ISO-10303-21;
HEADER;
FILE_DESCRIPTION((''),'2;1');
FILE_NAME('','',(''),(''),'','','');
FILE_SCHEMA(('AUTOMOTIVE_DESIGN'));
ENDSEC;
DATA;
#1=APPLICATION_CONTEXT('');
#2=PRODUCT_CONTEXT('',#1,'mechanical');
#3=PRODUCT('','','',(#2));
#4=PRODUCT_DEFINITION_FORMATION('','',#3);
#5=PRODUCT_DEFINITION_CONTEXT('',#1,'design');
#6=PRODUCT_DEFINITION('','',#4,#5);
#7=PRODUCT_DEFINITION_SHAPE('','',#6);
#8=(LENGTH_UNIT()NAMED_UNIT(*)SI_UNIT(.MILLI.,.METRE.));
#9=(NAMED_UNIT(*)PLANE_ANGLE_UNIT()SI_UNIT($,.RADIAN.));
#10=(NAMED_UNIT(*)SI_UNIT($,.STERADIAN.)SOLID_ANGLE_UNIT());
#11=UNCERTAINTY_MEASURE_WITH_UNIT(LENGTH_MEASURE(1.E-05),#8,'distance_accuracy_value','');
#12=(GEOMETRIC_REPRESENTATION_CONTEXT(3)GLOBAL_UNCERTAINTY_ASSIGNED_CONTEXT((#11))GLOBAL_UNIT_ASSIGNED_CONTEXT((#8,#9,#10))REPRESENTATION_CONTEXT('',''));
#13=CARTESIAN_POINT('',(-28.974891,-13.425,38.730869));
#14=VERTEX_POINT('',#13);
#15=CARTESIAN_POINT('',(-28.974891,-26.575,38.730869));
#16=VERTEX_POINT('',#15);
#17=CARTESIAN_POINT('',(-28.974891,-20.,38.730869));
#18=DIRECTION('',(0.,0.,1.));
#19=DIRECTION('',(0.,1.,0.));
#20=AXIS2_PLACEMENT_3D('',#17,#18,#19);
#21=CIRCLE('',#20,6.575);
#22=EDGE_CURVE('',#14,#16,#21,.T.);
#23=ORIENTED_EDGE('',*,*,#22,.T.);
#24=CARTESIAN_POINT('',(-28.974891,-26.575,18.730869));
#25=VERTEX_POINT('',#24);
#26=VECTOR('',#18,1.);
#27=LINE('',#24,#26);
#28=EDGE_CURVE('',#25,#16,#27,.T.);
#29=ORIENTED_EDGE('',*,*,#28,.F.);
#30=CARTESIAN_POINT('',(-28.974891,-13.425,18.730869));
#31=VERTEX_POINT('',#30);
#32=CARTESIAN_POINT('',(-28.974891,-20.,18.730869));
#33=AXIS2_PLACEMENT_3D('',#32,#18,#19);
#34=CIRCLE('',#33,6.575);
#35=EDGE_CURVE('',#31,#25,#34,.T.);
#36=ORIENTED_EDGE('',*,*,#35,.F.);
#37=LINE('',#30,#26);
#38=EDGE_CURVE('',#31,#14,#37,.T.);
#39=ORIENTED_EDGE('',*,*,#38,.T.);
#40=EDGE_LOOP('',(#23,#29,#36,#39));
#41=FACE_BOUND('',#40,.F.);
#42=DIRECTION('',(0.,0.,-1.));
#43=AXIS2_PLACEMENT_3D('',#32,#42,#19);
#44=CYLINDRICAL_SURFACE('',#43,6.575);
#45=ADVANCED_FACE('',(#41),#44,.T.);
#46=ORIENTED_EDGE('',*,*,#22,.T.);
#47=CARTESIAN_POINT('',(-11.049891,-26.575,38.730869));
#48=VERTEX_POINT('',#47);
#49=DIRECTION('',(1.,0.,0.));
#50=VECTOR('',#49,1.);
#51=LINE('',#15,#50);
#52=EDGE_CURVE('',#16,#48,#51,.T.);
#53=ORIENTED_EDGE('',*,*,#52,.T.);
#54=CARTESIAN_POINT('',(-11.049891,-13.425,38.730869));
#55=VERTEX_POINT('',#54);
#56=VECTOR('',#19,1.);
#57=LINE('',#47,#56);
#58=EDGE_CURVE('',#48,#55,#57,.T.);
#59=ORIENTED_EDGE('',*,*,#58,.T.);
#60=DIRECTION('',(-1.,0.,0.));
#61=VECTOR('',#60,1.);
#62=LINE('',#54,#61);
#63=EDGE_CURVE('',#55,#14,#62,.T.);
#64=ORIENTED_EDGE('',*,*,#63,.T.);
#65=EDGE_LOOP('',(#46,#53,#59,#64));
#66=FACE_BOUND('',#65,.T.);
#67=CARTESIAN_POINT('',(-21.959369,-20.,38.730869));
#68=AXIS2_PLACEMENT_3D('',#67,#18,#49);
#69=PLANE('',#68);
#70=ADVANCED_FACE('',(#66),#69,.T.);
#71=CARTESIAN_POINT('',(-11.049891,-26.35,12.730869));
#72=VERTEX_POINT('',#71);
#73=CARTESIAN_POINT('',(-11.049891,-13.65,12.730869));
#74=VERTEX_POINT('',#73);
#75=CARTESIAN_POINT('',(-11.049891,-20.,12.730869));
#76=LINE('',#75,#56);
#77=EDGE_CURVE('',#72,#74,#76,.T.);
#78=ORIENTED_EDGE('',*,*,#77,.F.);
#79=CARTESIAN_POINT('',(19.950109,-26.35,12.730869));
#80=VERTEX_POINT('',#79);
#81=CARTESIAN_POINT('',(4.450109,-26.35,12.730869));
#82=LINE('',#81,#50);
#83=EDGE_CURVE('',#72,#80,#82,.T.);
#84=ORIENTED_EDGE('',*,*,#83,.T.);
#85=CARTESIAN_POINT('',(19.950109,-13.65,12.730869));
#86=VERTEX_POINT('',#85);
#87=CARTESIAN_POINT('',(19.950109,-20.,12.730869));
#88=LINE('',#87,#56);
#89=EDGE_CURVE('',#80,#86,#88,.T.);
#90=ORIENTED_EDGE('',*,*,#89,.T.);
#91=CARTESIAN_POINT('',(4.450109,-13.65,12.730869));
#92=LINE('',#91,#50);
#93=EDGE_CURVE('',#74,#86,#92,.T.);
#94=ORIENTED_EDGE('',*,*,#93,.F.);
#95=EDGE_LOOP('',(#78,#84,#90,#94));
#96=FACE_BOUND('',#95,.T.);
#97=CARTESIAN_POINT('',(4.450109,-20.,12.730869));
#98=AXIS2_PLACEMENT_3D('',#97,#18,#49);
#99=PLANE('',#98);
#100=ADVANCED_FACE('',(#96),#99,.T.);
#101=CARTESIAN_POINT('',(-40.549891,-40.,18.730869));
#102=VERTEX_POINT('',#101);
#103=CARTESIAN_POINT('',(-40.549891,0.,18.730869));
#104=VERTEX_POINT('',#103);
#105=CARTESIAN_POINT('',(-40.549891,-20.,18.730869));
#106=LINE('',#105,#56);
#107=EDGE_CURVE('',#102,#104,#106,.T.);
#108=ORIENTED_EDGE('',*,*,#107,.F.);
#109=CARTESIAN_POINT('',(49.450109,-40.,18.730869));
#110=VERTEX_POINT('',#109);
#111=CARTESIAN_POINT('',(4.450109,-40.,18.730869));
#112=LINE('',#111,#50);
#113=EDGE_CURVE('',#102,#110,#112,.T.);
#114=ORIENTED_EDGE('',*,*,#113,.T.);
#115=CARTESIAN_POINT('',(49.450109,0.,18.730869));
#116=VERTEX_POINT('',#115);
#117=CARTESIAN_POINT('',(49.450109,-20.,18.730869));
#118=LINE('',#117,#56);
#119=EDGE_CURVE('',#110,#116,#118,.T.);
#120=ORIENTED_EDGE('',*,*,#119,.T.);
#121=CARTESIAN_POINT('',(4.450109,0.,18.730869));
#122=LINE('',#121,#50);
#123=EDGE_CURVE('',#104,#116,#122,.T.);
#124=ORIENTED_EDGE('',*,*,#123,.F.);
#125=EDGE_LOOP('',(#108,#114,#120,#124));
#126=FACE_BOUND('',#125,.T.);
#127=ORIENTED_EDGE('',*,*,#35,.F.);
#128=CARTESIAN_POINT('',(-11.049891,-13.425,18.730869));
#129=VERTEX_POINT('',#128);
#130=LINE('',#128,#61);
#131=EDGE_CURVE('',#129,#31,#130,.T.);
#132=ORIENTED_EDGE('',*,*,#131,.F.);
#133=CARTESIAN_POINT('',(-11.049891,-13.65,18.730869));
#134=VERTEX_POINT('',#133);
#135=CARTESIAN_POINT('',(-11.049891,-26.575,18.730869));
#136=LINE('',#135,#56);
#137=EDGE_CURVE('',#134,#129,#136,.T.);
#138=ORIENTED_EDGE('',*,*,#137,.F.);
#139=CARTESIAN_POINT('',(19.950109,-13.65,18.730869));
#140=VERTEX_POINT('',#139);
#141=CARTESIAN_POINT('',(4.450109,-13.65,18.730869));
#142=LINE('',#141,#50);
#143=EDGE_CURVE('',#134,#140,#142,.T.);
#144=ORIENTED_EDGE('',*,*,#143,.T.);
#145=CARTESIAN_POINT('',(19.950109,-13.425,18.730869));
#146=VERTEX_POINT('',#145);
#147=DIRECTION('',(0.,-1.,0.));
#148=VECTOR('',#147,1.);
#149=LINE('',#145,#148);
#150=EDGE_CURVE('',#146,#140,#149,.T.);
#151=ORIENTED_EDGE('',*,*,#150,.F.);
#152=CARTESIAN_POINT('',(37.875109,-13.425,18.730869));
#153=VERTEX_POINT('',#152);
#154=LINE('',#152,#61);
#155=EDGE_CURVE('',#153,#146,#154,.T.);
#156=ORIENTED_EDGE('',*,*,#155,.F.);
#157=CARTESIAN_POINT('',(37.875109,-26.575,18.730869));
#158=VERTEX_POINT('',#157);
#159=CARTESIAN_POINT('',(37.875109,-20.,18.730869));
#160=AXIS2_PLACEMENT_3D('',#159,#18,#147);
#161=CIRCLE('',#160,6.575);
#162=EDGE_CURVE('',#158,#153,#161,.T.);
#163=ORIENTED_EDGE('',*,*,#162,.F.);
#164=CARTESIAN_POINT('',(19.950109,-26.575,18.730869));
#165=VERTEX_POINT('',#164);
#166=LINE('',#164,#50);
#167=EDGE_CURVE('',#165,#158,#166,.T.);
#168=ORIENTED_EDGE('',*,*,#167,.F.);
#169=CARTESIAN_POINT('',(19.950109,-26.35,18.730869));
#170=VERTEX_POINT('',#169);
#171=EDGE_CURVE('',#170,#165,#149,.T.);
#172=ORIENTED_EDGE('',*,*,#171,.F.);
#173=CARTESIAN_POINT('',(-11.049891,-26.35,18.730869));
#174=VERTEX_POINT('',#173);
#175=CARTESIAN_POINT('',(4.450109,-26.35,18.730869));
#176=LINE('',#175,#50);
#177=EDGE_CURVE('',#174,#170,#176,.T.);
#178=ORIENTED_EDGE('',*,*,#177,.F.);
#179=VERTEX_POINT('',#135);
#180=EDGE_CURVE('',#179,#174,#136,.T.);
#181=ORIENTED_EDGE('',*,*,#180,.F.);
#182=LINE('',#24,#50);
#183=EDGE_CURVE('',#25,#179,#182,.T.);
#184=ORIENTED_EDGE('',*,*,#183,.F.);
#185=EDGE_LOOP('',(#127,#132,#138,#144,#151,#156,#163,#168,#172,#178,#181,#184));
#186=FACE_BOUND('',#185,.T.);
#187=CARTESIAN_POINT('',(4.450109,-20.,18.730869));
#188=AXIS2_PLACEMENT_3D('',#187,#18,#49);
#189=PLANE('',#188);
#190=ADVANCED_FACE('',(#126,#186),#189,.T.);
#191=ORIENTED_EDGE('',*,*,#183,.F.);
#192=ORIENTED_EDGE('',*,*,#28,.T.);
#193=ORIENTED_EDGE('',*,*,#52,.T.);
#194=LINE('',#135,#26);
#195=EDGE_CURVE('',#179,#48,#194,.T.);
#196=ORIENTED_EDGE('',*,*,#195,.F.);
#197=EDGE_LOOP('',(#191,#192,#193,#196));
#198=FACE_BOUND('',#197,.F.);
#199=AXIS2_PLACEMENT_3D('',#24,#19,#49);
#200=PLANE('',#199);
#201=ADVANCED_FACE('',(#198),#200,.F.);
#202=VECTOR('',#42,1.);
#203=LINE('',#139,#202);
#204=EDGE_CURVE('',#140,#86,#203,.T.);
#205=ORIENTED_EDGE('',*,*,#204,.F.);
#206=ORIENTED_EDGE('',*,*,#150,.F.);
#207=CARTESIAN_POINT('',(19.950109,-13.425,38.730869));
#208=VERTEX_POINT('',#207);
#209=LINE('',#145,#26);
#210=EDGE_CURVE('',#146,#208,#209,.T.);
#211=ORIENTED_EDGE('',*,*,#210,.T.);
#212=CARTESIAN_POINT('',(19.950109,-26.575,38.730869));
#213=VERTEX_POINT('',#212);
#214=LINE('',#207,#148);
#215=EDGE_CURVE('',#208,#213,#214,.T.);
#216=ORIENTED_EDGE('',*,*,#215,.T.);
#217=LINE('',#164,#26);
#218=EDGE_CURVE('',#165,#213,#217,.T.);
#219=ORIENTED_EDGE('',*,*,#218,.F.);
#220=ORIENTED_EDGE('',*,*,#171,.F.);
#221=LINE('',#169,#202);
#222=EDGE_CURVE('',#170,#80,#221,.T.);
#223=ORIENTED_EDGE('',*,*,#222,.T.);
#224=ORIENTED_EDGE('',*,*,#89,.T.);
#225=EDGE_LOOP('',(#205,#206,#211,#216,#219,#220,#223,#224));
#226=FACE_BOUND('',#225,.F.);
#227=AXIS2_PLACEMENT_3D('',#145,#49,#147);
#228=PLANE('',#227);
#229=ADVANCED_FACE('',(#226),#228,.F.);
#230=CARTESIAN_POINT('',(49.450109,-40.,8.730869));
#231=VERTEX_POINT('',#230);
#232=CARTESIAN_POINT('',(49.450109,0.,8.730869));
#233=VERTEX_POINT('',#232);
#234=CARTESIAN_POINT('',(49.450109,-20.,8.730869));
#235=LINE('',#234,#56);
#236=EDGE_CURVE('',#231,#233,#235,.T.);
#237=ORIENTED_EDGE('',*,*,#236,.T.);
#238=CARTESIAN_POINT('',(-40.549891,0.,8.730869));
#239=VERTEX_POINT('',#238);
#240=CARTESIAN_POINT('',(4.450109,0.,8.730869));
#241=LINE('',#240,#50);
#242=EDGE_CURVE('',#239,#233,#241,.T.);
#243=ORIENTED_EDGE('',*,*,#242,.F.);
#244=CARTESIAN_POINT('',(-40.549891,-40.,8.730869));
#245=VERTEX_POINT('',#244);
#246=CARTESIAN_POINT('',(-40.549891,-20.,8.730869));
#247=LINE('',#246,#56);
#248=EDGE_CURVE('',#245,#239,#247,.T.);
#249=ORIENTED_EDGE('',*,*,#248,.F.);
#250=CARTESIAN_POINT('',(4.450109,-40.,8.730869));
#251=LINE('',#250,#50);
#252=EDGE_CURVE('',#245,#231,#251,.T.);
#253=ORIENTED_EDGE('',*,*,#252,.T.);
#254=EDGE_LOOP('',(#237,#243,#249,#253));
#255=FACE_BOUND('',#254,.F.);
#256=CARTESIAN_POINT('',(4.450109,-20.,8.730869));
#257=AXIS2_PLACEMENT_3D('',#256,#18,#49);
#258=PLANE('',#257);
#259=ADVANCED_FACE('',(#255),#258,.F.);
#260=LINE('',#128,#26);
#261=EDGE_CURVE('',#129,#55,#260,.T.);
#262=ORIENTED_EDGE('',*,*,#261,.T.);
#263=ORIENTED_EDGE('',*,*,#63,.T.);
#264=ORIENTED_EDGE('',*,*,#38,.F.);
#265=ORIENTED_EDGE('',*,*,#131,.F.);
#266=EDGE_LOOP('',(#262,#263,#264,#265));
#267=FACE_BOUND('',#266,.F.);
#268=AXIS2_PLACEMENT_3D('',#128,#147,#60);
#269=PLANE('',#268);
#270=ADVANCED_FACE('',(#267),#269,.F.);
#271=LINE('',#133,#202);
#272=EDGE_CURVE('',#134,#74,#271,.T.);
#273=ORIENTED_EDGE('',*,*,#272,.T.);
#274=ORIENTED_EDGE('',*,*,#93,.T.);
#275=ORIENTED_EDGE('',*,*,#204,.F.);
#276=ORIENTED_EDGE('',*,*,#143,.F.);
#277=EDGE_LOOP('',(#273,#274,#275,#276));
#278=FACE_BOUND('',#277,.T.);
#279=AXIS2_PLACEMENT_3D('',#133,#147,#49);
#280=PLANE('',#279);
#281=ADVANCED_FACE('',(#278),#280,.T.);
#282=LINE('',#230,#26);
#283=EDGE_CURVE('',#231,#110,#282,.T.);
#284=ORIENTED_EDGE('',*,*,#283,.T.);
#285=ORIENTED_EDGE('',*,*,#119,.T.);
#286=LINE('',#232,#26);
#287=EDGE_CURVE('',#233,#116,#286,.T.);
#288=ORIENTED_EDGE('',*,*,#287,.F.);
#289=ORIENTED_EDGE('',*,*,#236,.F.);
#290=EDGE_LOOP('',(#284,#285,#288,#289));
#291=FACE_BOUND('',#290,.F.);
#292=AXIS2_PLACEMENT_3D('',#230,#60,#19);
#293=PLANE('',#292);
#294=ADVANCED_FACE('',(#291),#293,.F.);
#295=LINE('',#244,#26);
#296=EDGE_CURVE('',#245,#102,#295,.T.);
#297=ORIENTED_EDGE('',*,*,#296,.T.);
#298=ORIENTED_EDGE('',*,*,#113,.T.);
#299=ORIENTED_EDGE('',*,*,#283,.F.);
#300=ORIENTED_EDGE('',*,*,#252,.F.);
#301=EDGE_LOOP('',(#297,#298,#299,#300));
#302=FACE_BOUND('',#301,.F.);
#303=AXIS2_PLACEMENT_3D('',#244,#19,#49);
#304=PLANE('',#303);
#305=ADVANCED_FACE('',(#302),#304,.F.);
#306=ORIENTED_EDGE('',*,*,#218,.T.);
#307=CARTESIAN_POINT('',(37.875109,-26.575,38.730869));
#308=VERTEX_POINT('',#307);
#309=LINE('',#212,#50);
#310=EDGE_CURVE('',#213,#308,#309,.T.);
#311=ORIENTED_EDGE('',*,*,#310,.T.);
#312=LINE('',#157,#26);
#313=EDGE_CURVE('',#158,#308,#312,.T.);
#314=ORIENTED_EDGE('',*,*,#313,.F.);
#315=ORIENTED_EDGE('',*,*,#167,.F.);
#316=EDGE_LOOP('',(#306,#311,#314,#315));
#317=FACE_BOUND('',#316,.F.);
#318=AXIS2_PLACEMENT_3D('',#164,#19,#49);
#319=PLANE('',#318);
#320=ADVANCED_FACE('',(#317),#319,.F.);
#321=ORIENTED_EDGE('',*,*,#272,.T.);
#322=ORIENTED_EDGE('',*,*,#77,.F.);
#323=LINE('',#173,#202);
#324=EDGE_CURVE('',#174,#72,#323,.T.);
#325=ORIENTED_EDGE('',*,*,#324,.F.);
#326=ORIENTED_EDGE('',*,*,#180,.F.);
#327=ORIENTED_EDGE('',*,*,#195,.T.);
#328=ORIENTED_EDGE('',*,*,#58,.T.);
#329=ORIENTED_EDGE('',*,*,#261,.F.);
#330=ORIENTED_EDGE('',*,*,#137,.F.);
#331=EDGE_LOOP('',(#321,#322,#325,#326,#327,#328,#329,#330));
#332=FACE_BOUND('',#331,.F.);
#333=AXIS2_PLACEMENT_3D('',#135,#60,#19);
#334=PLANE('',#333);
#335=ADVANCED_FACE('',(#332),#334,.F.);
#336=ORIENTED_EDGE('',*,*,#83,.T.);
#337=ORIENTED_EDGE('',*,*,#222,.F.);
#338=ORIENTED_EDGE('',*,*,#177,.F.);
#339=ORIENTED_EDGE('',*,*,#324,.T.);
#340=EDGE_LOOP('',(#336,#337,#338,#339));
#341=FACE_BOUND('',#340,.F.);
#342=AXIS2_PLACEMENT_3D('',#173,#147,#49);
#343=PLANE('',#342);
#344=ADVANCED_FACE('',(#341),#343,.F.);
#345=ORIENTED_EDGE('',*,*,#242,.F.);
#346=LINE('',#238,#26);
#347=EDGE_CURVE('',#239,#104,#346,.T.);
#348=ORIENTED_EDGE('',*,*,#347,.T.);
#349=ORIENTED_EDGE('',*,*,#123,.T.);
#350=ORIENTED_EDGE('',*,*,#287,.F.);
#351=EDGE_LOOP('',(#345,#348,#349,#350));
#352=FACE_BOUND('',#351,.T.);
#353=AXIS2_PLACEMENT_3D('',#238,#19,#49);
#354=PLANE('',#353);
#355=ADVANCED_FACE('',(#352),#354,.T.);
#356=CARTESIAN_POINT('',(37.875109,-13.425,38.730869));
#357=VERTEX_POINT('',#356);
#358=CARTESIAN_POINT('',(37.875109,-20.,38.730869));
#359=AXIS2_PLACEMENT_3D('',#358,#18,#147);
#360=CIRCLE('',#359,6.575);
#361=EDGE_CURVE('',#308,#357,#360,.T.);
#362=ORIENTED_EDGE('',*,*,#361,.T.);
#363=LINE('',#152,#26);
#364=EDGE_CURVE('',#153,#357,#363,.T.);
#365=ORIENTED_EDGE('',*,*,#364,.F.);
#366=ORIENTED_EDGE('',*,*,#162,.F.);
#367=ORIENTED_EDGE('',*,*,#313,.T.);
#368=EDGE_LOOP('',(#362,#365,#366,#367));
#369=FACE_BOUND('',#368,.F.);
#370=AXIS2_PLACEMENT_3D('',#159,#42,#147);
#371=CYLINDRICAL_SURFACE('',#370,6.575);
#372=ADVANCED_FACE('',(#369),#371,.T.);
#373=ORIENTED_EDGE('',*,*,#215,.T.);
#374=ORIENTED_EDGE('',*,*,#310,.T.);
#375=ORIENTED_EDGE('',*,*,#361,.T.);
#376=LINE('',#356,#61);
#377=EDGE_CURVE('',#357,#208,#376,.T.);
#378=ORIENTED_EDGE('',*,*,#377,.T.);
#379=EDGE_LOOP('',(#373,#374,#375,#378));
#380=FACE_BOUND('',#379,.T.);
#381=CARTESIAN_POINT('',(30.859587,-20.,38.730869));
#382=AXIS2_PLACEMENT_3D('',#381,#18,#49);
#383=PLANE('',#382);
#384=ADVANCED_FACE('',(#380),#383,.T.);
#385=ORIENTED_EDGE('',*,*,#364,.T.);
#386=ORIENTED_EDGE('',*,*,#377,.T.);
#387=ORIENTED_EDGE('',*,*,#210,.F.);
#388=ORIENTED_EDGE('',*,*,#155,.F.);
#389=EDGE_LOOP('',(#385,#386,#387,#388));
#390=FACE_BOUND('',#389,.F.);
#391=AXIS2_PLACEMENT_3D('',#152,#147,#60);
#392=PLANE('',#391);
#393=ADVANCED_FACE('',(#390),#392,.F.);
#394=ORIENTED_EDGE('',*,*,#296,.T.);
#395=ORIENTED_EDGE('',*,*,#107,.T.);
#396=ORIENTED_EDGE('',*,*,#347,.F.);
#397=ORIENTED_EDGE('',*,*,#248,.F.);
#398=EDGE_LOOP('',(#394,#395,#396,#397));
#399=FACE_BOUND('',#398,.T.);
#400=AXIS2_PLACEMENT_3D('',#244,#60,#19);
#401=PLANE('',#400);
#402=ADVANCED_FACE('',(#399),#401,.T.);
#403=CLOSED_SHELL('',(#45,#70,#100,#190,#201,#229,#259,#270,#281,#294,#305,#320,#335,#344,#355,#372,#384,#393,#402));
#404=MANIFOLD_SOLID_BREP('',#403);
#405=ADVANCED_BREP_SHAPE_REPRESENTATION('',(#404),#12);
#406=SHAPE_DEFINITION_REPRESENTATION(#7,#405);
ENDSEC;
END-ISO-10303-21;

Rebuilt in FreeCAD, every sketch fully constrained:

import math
import FreeCAD as App
import Part
import Sketcher

V = App.Vector

doc = App.newDocument("Part")
body = doc.addObject("PartDesign::Body", "Body")

# Sketch on XZ plane
sketch1 = body.newObject("Sketcher::SketchObject", "Sketch")
sketch1.AttachmentSupport = (doc.getObject("XZ_Plane"), [""])
sketch1.MapMode = "FlatFace"
sketch1.addGeometry([
    Part.LineSegment(V(-41, 9, 0), V(-41, -31, 0)),
    Part.LineSegment(V(-41, -31, 0), V(49, -31, 0)),
    Part.LineSegment(V(49, -31, 0), V(49, 9, 0)),
    Part.LineSegment(V(49, 9, 0), V(-41, 9, 0)),
], False)
sketch1.addConstraint([
    Sketcher.Constraint("Coincident", 0, 2, 1, 1),
    Sketcher.Constraint("Coincident", 1, 2, 2, 1),
    Sketcher.Constraint("Coincident", 2, 2, 3, 1),
    Sketcher.Constraint("Coincident", 3, 2, 0, 1),
    Sketcher.Constraint("Vertical", 0),
    Sketcher.Constraint("Horizontal", 1),
    Sketcher.Constraint("Vertical", 2),
    Sketcher.Constraint("Horizontal", 3),
    Sketcher.Constraint("DistanceX", 1, 1, 1, 2, 90.0),
    Sketcher.Constraint("DistanceY", 0, 2, 0, 1, 40.0),
    Sketcher.Constraint("DistanceX", 0, 2, -1, 1, 40.549891),
    Sketcher.Constraint("DistanceY", 0, 2, -1, 1, 31.269131),
])
pad1 = body.newObject("PartDesign::Pad", "Pad")
pad1.Profile = sketch1
pad1.Length = 10

# Sketch on XZ plane
sketch2 = body.newObject("Sketcher::SketchObject", "Sketch001")
sketch2.AttachmentSupport = (doc.getObject("XZ_Plane"), [""])
sketch2.MapMode = "FlatFace"
sketch2.AttachmentOffset = App.Placement(V(0, 0, 10), App.Rotation())
sketch2.addGeometry([
    Part.LineSegment(V(-11, -5, 0), V(-11, -18, 0)),
    Part.LineSegment(V(-11, -18, 0), V(20, -18, 0)),
    Part.LineSegment(V(20, -18, 0), V(20, -5, 0)),
    Part.LineSegment(V(20, -5, 0), V(-11, -5, 0)),
], False)
sketch2.addConstraint([
    Sketcher.Constraint("Coincident", 0, 2, 1, 1),
    Sketcher.Constraint("Coincident", 1, 2, 2, 1),
    Sketcher.Constraint("Coincident", 2, 2, 3, 1),
    Sketcher.Constraint("Coincident", 3, 2, 0, 1),
    Sketcher.Constraint("Vertical", 0),
    Sketcher.Constraint("Horizontal", 1),
    Sketcher.Constraint("Vertical", 2),
    Sketcher.Constraint("Horizontal", 3),
    Sketcher.Constraint("DistanceX", 1, 1, 1, 2, 31.0),
    Sketcher.Constraint("DistanceY", 0, 2, 0, 1, 12.7),
    Sketcher.Constraint("DistanceX", 0, 2, -1, 1, 11.049891),
    Sketcher.Constraint("DistanceY", 0, 2, -1, 1, 17.619131),
])
pocket1 = body.newObject("PartDesign::Pocket", "Pocket")
pocket1.Profile = sketch2
pocket1.Length = 6

# Sketch on XZ plane
sketch3 = body.newObject("Sketcher::SketchObject", "Sketch002")
sketch3.AttachmentSupport = (doc.getObject("XZ_Plane"), [""])
sketch3.MapMode = "FlatFace"
sketch3.AttachmentOffset = App.Placement(V(0, 0, 10), App.Rotation())
sketch3.addGeometry([
    Part.ArcOfCircle(Part.Circle(V(38, -11, 0), V(0, 0, 1), 7), math.radians(-90), math.radians(90)),  # 0
    Part.LineSegment(V(38, -5, 0), V(20, -5, 0)),  # 1
    Part.LineSegment(V(20, -5, 0), V(20, -18, 0)),  # 2
    Part.LineSegment(V(20, -18, 0), V(38, -18, 0)),  # 3
    Part.LineSegment(V(-29, -18, 0), V(-11, -18, 0)),  # 4
    Part.LineSegment(V(-11, -18, 0), V(-11, -5, 0)),  # 5
    Part.LineSegment(V(-11, -5, 0), V(-29, -5, 0)),  # 6
    Part.ArcOfCircle(Part.Circle(V(-29, -11, 0), V(0, 0, 1), 7), math.radians(90), math.radians(270)),  # 7
], False)
sketch3.addConstraint([
    Sketcher.Constraint("Tangent", 0, 2, 1, 1),
    Sketcher.Constraint("Coincident", 1, 2, 2, 1),
    Sketcher.Constraint("Coincident", 2, 2, 3, 1),
    Sketcher.Constraint("Tangent", 3, 2, 0, 1),
    Sketcher.Constraint("Coincident", 4, 2, 5, 1),
    Sketcher.Constraint("Coincident", 5, 2, 6, 1),
    Sketcher.Constraint("Tangent", 6, 2, 7, 1),
    Sketcher.Constraint("Tangent", 7, 2, 4, 1),
    Sketcher.Constraint("Horizontal", 1),
    Sketcher.Constraint("Vertical", 2),
    Sketcher.Constraint("Horizontal", 3),
    Sketcher.Constraint("Horizontal", 4),
    Sketcher.Constraint("Vertical", 5),
    Sketcher.Constraint("Horizontal", 6),
    Sketcher.Constraint("Equal", 0, 7),
    Sketcher.Constraint("Horizontal", 0, 3, 7, 3),
    Sketcher.Constraint("Equal", 3, 4),
    Sketcher.Constraint("Radius", 0, 6.575),
    Sketcher.Constraint("DistanceX", 4, 2, 2, 2, 31.0),
    Sketcher.Constraint("DistanceX", 1, 2, 1, 1, 17.925),
    Sketcher.Constraint("DistanceX", -1, 1, 0, 3, 37.875109),
    Sketcher.Constraint("DistanceY", 0, 3, -1, 1, 11.269131),
])
pad2 = body.newObject("PartDesign::Pad", "Pad001")
pad2.Profile = sketch3
pad2.Length = 20
body2 = doc.addObject("PartDesign::Body", "Body001")
doc.recompute()

body.Placement = App.Placement(V(0, -8.730869, 8.730869), App.Rotation(V(1, 0, 0), 270))
boolean = body2.newObject("PartDesign::Boolean", "Boolean")
boolean.Type = "Fuse"
boolean.addObjects([body])

doc.recompute()
